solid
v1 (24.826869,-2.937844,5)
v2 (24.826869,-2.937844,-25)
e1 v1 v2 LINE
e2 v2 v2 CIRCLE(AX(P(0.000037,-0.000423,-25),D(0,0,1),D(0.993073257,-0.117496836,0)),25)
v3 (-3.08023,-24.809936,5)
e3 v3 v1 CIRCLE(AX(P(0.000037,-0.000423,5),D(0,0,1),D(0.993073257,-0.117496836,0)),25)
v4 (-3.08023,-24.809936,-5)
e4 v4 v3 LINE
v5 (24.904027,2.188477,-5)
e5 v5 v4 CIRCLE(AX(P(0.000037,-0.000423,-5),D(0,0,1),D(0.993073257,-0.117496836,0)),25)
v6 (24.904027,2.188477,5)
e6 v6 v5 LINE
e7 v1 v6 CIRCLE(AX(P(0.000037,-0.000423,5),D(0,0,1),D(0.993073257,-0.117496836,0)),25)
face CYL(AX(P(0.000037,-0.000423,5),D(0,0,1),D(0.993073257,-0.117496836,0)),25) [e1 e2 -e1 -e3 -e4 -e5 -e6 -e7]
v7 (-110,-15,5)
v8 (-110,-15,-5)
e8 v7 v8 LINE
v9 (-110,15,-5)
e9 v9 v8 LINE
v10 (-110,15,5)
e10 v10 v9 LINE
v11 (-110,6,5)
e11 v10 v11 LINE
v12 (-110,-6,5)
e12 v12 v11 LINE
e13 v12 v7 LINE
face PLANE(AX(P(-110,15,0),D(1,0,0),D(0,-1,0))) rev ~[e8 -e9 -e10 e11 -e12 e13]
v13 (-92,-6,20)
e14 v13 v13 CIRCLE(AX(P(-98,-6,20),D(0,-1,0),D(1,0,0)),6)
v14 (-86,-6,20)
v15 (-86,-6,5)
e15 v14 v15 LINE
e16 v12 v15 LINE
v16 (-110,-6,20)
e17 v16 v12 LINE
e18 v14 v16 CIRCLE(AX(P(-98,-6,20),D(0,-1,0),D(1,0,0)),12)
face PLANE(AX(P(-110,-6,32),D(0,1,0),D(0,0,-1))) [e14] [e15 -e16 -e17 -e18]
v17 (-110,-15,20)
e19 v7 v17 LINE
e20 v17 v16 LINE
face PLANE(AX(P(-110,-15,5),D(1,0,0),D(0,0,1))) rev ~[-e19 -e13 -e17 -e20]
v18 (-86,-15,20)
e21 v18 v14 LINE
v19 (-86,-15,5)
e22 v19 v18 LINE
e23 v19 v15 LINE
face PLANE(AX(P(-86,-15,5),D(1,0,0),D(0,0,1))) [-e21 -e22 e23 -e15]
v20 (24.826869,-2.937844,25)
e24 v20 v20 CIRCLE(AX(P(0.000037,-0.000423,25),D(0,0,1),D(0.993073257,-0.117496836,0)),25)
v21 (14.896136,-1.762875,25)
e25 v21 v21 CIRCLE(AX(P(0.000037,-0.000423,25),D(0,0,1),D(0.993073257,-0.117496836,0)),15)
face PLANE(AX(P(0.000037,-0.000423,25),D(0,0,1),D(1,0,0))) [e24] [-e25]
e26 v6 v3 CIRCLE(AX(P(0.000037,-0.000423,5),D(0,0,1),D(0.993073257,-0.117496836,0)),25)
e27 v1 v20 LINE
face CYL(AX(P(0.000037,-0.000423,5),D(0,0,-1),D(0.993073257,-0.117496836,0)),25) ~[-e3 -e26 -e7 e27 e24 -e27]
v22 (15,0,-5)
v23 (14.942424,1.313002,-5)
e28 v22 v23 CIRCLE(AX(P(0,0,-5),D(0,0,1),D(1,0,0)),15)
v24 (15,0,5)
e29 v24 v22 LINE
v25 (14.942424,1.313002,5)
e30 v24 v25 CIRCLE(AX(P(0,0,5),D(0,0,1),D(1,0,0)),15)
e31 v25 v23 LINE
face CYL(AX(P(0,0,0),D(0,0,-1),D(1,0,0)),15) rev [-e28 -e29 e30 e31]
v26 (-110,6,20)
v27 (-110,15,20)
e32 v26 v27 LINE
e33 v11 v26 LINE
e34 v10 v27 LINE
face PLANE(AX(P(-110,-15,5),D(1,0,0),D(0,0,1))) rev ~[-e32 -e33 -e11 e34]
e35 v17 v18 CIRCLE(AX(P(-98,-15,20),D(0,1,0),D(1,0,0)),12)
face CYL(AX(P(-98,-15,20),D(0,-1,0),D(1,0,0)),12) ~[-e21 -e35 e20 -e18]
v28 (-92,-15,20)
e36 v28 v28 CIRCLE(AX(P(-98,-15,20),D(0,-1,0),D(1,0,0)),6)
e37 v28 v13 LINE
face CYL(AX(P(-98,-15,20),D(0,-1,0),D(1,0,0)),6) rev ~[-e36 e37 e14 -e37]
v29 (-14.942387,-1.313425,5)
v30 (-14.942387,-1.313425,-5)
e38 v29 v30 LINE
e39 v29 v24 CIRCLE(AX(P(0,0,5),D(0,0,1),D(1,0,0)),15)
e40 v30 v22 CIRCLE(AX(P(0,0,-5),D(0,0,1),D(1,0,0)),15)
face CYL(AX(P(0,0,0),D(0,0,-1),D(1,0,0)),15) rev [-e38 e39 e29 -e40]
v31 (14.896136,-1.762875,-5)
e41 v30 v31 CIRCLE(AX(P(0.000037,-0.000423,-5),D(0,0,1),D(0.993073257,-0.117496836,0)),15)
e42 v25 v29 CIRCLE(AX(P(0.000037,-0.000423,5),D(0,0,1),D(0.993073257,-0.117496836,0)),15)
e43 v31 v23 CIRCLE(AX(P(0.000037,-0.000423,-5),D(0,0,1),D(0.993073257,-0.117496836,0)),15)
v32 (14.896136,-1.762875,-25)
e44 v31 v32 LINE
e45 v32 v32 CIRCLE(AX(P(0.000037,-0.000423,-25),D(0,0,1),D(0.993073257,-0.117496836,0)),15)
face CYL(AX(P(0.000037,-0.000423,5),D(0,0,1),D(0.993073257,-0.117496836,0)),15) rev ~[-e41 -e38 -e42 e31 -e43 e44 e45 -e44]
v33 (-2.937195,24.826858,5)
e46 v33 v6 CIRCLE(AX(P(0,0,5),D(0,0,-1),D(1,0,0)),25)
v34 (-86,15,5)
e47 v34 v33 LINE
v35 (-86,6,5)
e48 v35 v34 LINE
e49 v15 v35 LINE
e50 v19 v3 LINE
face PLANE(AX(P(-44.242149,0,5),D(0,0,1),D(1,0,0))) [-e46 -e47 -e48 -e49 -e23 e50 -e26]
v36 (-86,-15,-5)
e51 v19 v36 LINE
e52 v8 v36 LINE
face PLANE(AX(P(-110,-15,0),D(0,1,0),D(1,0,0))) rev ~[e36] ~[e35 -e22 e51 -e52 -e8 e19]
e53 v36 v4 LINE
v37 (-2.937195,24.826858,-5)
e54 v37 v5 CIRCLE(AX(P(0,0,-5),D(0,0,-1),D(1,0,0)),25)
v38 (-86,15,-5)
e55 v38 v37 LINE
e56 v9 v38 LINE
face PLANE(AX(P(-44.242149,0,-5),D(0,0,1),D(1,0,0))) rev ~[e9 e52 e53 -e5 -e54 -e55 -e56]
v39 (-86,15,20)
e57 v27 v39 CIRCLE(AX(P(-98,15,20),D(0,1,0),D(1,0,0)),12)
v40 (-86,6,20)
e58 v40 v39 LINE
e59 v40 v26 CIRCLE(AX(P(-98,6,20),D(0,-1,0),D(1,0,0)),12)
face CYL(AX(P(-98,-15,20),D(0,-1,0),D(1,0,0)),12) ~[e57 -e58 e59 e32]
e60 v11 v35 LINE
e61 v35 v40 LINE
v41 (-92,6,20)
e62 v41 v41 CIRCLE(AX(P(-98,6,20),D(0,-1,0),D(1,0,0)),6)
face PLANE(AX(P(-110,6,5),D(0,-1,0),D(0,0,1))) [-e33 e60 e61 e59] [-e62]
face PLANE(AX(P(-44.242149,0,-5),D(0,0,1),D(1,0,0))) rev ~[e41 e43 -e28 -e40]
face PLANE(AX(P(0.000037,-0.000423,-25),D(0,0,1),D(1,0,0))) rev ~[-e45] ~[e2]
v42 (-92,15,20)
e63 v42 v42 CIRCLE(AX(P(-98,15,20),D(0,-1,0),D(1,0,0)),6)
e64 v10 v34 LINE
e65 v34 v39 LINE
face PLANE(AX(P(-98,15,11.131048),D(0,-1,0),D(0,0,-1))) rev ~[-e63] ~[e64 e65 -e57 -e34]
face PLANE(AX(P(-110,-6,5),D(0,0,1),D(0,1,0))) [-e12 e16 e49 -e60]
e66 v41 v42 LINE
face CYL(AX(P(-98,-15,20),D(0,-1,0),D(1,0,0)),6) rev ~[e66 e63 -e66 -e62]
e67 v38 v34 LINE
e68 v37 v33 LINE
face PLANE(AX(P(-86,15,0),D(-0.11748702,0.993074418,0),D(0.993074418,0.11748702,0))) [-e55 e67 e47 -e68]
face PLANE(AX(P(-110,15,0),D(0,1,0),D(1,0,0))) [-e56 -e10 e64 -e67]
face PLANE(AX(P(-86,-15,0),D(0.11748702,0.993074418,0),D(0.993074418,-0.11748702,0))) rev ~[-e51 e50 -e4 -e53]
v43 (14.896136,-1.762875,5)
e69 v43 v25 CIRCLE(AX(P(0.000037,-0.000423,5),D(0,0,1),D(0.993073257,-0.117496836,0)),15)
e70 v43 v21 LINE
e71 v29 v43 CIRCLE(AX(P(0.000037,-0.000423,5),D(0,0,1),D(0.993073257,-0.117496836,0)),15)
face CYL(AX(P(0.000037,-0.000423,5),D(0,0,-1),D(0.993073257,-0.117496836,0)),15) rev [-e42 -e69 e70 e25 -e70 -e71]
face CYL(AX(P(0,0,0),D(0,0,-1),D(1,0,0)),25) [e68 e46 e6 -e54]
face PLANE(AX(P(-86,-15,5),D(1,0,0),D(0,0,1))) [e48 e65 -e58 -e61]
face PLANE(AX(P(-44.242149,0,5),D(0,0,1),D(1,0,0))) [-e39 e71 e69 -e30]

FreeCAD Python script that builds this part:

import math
import FreeCAD as App
import Part
import Sketcher
from FreeCAD import Vector
Q = App.Units.Quantity

doc = App.newDocument("Part")
body = doc.addObject("PartDesign::Body", "Body")

# Sketch on XY plane
sketch1 = body.newObject("Sketcher::SketchObject", "Sketch")
sketch1.AttachmentSupport = (doc.getObject("XY_Plane"), [""])
sketch1.MapMode = "FlatFace"
sketch1.addGeometry([
    Part.LineSegment(Vector(-110, -15, 0), Vector(-86, -15, 0)),  # 0
    Part.LineSegment(Vector(-86, -15, 0), Vector(-3, -25, 0)),  # 1
    Part.ArcOfCircle(Part.Circle(Vector(0, 0, 0), Vector(0, 0, 1), 25), math.radians(-97), math.radians(97)),  # 2
    Part.LineSegment(Vector(-3, 25, 0), Vector(-86, 15, 0)),  # 3
    Part.LineSegment(Vector(-86, 15, 0), Vector(-110, 15, 0)),  # 4
    Part.LineSegment(Vector(-110, 15, 0), Vector(-110, -15, 0)),  # 5
    Part.Circle(Vector(0, 0, 0), Vector(0, 0, 1), 15),  # 6
], False)
sketch1.addConstraint([
    Sketcher.Constraint("Coincident", 0, 2, 1, 1),
    Sketcher.Constraint("Tangent", 1, 2, 2, 1),
    Sketcher.Constraint("Tangent", 2, 2, 3, 1),
    Sketcher.Constraint("Coincident", 3, 2, 4, 1),
    Sketcher.Constraint("Coincident", 4, 2, 5, 1),
    Sketcher.Constraint("Coincident", 5, 2, 0, 1),
    Sketcher.Constraint("Horizontal", 0),
    Sketcher.Constraint("Horizontal", 4),
    Sketcher.Constraint("Vertical", 5),
    Sketcher.Constraint("Coincident", 2, 3, -1, 1),
    Sketcher.Constraint("Coincident", 6, 3, -1, 1),
    Sketcher.Constraint("Symmetric", 0, 2, 3, 2, -1),
    Sketcher.Constraint("Diameter", 6, Q("30 mm")),
    Sketcher.Constraint("Radius", 2, Q("25 mm")),
    Sketcher.Constraint("DistanceX", 0, 1, 0, 2, Q("24 mm")),
    Sketcher.Constraint("DistanceY", 5, 2, 5, 1, Q("30 mm")),
    Sketcher.Constraint("DistanceX", 0, 2, -1, 1, Q("86 mm")),
])
pad1 = body.newObject("PartDesign::Pad", "Pad")
pad1.Profile = sketch1
pad1.Length = 10
pad1.Midplane = True

# Sketch on XY plane
sketch2 = body.newObject("Sketcher::SketchObject", "Sketch001")
sketch2.AttachmentSupport = (doc.getObject("XY_Plane"), [""])
sketch2.MapMode = "FlatFace"
sketch2.AttachmentOffset = App.Placement(Vector(0, 0, 5), App.Rotation())
sketch2.addGeometry([
    Part.Circle(Vector(0, 0, 0), Vector(0, 0, 1), 25),
    Part.Circle(Vector(0, 0, 0), Vector(0, 0, 1), 15),
], False)
sketch2.addConstraint([
    Sketcher.Constraint("Coincident", 1, 3, 0, 3),
    Sketcher.Constraint("PointOnObject", 0, 3, -2),
    Sketcher.Constraint("Diameter", 0, Q("50 mm")),
    Sketcher.Constraint("Diameter", 1, Q("30 mm")),
    Sketcher.Constraint("DistanceY", 0, 3, -1, 1, Q("0.0004 mm")),
])
pad2 = body.newObject("PartDesign::Pad", "Pad001")
pad2.Profile = sketch2
pad2.Type = "TwoLengths"
pad2.Length = 20
pad2.Length2 = 30

# Sketch on XZ plane
sketch3 = body.newObject("Sketcher::SketchObject", "Sketch002")
sketch3.AttachmentSupport = (doc.getObject("XZ_Plane"), [""])
sketch3.MapMode = "FlatFace"
sketch3.AttachmentOffset = App.Placement(Vector(0, 0, 15), App.Rotation())
sketch3.addGeometry([
    Part.LineSegment(Vector(-86, -5, 0), Vector(-86, 20, 0)),  # 0
    Part.ArcOfCircle(Part.Circle(Vector(-98, 20, 0), Vector(0, 0, 1), 12), math.radians(0), math.radians(180)),  # 1
    Part.LineSegment(Vector(-110, 20, 0), Vector(-110, -5, 0)),  # 2
    Part.LineSegment(Vector(-110, -5, 0), Vector(-86, -5, 0)),  # 3
    Part.Circle(Vector(-98, 20, 0), Vector(0, 0, 1), 6),  # 4
], False)
sketch3.addConstraint([
    Sketcher.Constraint("Tangent", 0, 2, 1, 1),
    Sketcher.Constraint("Tangent", 1, 2, 2, 1),
    Sketcher.Constraint("Coincident", 2, 2, 3, 1),
    Sketcher.Constraint("Coincident", 3, 2, 0, 1),
    Sketcher.Constraint("Vertical", 0),
    Sketcher.Constraint("Vertical", 2),
    Sketcher.Constraint("Horizontal", 3),
    Sketcher.Constraint("Coincident", 4, 3, 1, 3),
    Sketcher.Constraint("Diameter", 4, Q("12 mm")),
    Sketcher.Constraint("Radius", 1, Q("12 mm")),
    Sketcher.Constraint("DistanceY", 0, 1, 0, 2, Q("25 mm")),
    Sketcher.Constraint("DistanceX", 1, 3, -1, 1, Q("98 mm")),
    Sketcher.Constraint("DistanceY", -1, 1, 1, 3, Q("20 mm")),
])
pad3 = body.newObject("PartDesign::Pad", "Pad002")
pad3.Profile = sketch3
pad3.Length = 30
pad3.Reversed = True

# Sketch on YZ plane
sketch4 = body.newObject("Sketcher::SketchObject", "Sketch003")
sketch4.AttachmentSupport = (doc.getObject("YZ_Plane"), [""])
sketch4.MapMode = "FlatFace"
sketch4.AttachmentOffset = App.Placement(Vector(0, 0, -110), App.Rotation())
sketch4.addGeometry([
    Part.LineSegment(Vector(-6, 32, 0), Vector(6, 32, 0)),
    Part.LineSegment(Vector(6, 32, 0), Vector(6, 5, 0)),
    Part.LineSegment(Vector(6, 5, 0), Vector(-6, 5, 0)),
    Part.LineSegment(Vector(-6, 5, 0), Vector(-6, 32, 0)),
], False)
sketch4.addConstraint([
    Sketcher.Constraint("Coincident", 0, 2, 1, 1),
    Sketcher.Constraint("Coincident", 1, 2, 2, 1),
    Sketcher.Constraint("Coincident", 2, 2, 3, 1),
    Sketcher.Constraint("Coincident", 3, 2, 0, 1),
    Sketcher.Constraint("Horizontal", 0),
    Sketcher.Constraint("Vertical", 1),
    Sketcher.Constraint("Horizontal", 2),
    Sketcher.Constraint("Vertical", 3),
    Sketcher.Constraint("DistanceX", 0, 1, 0, 2, Q("12 mm")),
    Sketcher.Constraint("DistanceY", 1, 2, 1, 1, Q("27 mm")),
    Sketcher.Constraint("DistanceX", -1, 1, 0, 2, Q("6 mm")),
    Sketcher.Constraint("DistanceY", -1, 1, 0, 2, Q("32 mm")),
])
pocket1 = body.newObject("PartDesign::Pocket", "Pocket")
pocket1.Profile = sketch4
pocket1.Length = 24
pocket1.Reversed = True

doc.recompute()
